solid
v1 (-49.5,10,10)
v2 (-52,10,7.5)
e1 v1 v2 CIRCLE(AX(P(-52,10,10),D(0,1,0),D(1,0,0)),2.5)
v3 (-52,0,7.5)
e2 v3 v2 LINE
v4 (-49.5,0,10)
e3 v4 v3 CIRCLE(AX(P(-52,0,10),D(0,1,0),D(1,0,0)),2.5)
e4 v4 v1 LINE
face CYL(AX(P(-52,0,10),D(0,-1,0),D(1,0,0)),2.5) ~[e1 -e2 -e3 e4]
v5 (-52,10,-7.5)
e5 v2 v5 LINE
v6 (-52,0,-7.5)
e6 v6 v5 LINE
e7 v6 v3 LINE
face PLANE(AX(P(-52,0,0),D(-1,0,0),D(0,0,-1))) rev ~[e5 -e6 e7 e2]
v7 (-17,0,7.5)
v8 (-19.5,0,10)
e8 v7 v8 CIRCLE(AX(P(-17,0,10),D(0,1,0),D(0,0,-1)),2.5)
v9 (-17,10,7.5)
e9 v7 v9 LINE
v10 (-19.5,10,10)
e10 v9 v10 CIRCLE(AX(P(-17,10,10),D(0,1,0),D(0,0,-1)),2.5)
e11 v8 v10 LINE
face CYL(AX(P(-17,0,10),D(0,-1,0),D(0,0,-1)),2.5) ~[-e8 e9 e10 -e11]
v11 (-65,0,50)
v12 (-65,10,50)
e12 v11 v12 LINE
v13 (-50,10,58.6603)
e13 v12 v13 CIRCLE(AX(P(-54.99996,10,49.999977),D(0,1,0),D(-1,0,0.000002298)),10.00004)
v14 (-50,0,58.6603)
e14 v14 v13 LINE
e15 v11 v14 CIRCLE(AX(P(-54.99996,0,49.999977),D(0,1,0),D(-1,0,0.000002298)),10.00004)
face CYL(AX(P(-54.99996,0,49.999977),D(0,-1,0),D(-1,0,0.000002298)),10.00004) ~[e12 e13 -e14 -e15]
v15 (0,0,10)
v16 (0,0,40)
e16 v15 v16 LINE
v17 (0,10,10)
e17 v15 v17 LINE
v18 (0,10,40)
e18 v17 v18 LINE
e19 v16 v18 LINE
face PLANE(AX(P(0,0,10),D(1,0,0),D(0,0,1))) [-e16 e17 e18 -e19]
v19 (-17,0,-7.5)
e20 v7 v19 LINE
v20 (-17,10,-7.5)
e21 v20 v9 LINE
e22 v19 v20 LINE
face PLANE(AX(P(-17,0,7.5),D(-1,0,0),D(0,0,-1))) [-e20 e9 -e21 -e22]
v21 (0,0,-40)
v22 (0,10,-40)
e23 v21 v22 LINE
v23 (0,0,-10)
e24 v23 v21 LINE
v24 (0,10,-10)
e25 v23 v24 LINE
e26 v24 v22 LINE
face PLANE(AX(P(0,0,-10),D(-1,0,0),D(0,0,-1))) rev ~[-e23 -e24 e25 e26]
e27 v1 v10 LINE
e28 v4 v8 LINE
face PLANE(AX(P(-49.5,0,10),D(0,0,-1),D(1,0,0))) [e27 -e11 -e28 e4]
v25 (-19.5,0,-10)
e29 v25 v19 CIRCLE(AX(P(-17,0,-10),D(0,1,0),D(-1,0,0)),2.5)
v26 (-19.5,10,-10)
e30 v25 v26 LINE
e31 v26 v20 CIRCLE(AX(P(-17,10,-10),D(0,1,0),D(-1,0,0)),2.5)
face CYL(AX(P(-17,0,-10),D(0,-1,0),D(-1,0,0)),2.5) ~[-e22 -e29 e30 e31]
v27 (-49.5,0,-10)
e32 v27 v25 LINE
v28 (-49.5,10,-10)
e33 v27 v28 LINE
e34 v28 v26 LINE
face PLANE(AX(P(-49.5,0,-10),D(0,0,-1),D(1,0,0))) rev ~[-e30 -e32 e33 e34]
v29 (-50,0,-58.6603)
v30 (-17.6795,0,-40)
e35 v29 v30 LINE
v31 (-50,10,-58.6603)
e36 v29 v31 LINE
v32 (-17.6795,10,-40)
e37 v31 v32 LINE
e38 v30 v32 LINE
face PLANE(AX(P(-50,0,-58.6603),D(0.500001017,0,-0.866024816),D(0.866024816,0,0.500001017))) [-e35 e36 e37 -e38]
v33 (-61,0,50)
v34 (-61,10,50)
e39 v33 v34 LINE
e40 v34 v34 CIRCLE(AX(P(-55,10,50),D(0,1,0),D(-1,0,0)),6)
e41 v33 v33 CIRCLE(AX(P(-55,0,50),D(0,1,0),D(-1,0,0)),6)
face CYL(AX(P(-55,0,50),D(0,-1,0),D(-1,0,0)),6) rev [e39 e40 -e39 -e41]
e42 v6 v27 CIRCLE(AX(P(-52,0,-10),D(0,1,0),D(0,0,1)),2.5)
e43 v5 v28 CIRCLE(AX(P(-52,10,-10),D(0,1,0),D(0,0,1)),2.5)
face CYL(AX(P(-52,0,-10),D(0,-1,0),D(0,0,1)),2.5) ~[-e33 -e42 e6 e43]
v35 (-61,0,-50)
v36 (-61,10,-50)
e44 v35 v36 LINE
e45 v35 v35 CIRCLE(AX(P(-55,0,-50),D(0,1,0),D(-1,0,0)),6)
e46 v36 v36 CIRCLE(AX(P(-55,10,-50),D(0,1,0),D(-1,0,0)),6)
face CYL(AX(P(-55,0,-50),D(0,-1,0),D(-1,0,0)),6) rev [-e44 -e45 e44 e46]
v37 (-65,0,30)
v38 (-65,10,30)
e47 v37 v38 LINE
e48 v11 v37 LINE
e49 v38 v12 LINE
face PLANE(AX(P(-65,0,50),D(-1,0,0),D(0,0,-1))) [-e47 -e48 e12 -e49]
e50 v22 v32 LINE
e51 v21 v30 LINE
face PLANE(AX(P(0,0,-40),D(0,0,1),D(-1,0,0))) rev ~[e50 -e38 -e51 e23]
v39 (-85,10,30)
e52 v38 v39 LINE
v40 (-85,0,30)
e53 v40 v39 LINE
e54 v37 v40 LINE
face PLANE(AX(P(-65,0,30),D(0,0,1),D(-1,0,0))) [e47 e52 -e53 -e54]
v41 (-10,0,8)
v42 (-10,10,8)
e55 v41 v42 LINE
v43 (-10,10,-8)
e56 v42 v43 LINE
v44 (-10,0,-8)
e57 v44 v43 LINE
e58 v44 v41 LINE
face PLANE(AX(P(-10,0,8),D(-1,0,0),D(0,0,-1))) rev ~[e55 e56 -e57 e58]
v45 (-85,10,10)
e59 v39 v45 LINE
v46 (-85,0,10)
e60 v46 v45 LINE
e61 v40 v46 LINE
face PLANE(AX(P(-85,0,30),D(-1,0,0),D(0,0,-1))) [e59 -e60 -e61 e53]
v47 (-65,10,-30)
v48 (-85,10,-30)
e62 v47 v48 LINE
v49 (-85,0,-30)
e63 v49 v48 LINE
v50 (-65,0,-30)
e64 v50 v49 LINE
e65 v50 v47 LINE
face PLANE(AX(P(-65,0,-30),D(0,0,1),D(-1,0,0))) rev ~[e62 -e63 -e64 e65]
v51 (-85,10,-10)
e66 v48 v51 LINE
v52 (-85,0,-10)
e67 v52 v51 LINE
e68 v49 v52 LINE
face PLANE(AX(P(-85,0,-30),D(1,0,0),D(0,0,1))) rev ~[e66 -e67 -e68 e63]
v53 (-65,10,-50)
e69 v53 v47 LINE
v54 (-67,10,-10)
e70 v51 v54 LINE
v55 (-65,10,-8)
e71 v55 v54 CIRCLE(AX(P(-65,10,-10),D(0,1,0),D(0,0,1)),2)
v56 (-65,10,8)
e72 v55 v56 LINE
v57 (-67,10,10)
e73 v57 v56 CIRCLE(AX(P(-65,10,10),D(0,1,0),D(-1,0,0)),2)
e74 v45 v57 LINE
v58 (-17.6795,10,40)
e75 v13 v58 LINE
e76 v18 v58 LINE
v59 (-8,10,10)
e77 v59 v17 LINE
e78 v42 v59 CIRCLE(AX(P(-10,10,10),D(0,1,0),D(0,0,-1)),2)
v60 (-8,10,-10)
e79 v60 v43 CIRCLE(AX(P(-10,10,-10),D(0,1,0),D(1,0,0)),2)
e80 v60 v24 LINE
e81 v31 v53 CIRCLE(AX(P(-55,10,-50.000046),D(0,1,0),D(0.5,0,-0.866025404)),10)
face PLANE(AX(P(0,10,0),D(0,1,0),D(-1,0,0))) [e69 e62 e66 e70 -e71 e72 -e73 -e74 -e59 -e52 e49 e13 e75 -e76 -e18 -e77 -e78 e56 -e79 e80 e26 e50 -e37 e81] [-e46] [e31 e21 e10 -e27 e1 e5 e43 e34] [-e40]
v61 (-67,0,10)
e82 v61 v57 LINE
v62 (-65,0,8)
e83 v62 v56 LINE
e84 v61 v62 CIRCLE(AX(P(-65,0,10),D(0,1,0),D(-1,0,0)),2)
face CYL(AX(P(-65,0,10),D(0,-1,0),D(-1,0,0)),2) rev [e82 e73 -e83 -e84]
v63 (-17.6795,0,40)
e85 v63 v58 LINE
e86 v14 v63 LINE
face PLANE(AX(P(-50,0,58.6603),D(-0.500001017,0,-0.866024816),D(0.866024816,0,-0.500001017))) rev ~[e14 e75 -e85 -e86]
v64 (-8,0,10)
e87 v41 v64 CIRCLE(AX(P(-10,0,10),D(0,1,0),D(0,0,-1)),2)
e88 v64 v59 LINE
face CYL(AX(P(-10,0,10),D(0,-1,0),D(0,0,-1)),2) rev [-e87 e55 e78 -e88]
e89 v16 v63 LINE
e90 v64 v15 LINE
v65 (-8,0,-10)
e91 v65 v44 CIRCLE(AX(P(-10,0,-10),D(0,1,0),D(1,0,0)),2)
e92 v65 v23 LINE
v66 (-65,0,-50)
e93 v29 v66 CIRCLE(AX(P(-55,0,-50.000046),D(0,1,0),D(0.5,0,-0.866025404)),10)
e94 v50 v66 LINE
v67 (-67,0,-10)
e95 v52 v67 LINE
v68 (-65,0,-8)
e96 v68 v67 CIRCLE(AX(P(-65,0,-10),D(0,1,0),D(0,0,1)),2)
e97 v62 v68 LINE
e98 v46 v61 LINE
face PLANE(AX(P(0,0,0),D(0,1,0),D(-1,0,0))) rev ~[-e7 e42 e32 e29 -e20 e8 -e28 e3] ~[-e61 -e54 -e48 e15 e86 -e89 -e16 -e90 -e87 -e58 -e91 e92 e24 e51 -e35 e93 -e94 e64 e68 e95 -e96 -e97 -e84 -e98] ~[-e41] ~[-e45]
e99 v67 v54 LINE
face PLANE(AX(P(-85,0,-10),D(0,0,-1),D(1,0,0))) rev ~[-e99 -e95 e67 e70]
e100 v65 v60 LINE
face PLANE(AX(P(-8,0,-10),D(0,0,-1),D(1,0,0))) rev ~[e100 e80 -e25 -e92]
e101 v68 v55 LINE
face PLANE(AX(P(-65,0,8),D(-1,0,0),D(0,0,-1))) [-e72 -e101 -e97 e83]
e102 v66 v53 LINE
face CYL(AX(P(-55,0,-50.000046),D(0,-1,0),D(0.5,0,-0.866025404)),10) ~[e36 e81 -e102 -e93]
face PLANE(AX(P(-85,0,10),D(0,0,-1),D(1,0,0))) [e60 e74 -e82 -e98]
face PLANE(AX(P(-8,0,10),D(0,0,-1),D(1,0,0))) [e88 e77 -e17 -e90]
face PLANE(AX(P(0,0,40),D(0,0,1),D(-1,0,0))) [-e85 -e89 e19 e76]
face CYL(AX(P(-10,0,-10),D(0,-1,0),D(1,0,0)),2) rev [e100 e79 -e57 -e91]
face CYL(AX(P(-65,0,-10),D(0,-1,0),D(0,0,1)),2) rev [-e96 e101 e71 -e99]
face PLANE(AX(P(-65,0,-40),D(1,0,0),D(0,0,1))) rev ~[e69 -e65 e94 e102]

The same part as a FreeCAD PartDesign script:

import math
import FreeCAD as App
import Part
import Sketcher
from FreeCAD import Vector
Q = App.Units.Quantity

doc = App.newDocument("Part")
body = doc.addObject("PartDesign::Body", "Body")

# Sketch on XZ plane
sketch1 = doc.addObject("Sketcher::SketchObject", "Sketch")
body.addObject(sketch1)
sketch1.AttachmentSupport = (doc.XZ_Plane, [""])
sketch1.MapMode = "FlatFace"
sketch1.addGeometry(Part.LineSegment(Vector(0, 10, 0), Vector(-8, 10, 0)), False)
sketch1.addGeometry(Part.ArcOfCircle(Part.Circle(Vector(-10, 10, 0), Vector(0, 0, 1), 2), math.radians(0), math.radians(270)), False)
sketch1.addGeometry(Part.LineSegment(Vector(-10, 8, 0), Vector(-10, -8, 0)), False)
sketch1.addGeometry(Part.ArcOfCircle(Part.Circle(Vector(-10, -10, 0), Vector(0, 0, 1), 2), math.radians(90), math.radians(360)), False)
sketch1.addGeometry(Part.LineSegment(Vector(-8, -10, 0), Vector(0, -10, 0)), False)
sketch1.addGeometry(Part.LineSegment(Vector(0, -10, 0), Vector(0, -40, 0)), False)
sketch1.addGeometry(Part.LineSegment(Vector(0, -40, 0), Vector(-17.7, -40, 0)), False)
sketch1.addGeometry(Part.LineSegment(Vector(-17.7, -40, 0), Vector(-50, -58.7, 0)), False)
sketch1.addGeometry(Part.ArcOfCircle(Part.Circle(Vector(-55, -50, 0), Vector(0, 0, 1), 10), math.radians(180), math.radians(300)), False)
sketch1.addGeometry(Part.LineSegment(Vector(-65, -50, 0), Vector(-65, -30, 0)), False)
sketch1.addGeometry(Part.LineSegment(Vector(-65, -30, 0), Vector(-85, -30, 0)), False)
sketch1.addGeometry(Part.LineSegment(Vector(-85, -30, 0), Vector(-85, -10, 0)), False)
sketch1.addGeometry(Part.LineSegment(Vector(-85, -10, 0), Vector(-67, -10, 0)), False)
sketch1.addGeometry(Part.ArcOfCircle(Part.Circle(Vector(-65, -10, 0), Vector(0, 0, 1), 2), math.radians(180), math.radians(450)), False)
sketch1.addGeometry(Part.LineSegment(Vector(-65, -8, 0), Vector(-65, 8, 0)), False)
sketch1.addGeometry(Part.ArcOfCircle(Part.Circle(Vector(-65, 10, 0), Vector(0, 0, 1), 2), math.radians(-90), math.radians(180)), False)
sketch1.addGeometry(Part.LineSegment(Vector(-67, 10, 0), Vector(-85, 10, 0)), False)
sketch1.addGeometry(Part.LineSegment(Vector(-85, 10, 0), Vector(-85, 30, 0)), False)
sketch1.addGeometry(Part.LineSegment(Vector(-85, 30, 0), Vector(-65, 30, 0)), False)
sketch1.addGeometry(Part.LineSegment(Vector(-65, 30, 0), Vector(-65, 50, 0)), False)
sketch1.addGeometry(Part.ArcOfCircle(Part.Circle(Vector(-55, 50, 0), Vector(0, 0, 1), 10), math.radians(60), math.radians(180)), False)
sketch1.addGeometry(Part.LineSegment(Vector(-50, 58.7, 0), Vector(-17.7, 40, 0)), False)
sketch1.addGeometry(Part.LineSegment(Vector(-17.7, 40, 0), Vector(0, 40, 0)), False)
sketch1.addGeometry(Part.LineSegment(Vector(0, 40, 0), Vector(0, 10, 0)), False)
sketch1.addGeometry(Part.Circle(Vector(-55, -50, 0), Vector(0, 0, 1), 6), False)
sketch1.addGeometry(Part.LineSegment(Vector(-19.5, 10, 0), Vector(-49.5, 10, 0)), False)
sketch1.addGeometry(Part.ArcOfCircle(Part.Circle(Vector(-52, 10, 0), Vector(0, 0, 1), 2.5), math.radians(-90), math.radians(0)), False)
sketch1.addGeometry(Part.LineSegment(Vector(-52, 7.5, 0), Vector(-52, -7.5, 0)), False)
sketch1.addGeometry(Part.ArcOfCircle(Part.Circle(Vector(-52, -10, 0), Vector(0, 0, 1), 2.5), math.radians(0), math.radians(90)), False)
sketch1.addGeometry(Part.LineSegment(Vector(-49.5, -10, 0), Vector(-19.5, -10, 0)), False)
sketch1.addGeometry(Part.ArcOfCircle(Part.Circle(Vector(-17, -10, 0), Vector(0, 0, 1), 2.5), math.radians(90), math.radians(180)), False)
sketch1.addGeometry(Part.LineSegment(Vector(-17, -7.5, 0), Vector(-17, 7.5, 0)), False)
sketch1.addGeometry(Part.ArcOfCircle(Part.Circle(Vector(-17, 10, 0), Vector(0, 0, 1), 2.5), math.radians(180), math.radians(270)), False)
sketch1.addGeometry(Part.Circle(Vector(-55, 50, 0), Vector(0, 0, 1), 6), False)
sketch1.addConstraint(Sketcher.Constraint("Coincident", 0, 2, 1, 1))
sketch1.addConstraint(Sketcher.Constraint("Coincident", 1, 2, 2, 1))
sketch1.addConstraint(Sketcher.Constraint("Coincident", 2, 2, 3, 1))
sketch1.addConstraint(Sketcher.Constraint("Coincident", 3, 2, 4, 1))
sketch1.addConstraint(Sketcher.Constraint("Coincident", 4, 2, 5, 1))
sketch1.addConstraint(Sketcher.Constraint("Coincident", 5, 2, 6, 1))
sketch1.addConstraint(Sketcher.Constraint("Coincident", 6, 2, 7, 1))
sketch1.addConstraint(Sketcher.Constraint("Tangent", 7, 2, 8, 2))
sketch1.addConstraint(Sketcher.Constraint("Tangent", 8, 1, 9, 1))
sketch1.addConstraint(Sketcher.Constraint("Coincident", 9, 2, 10, 1))
sketch1.addConstraint(Sketcher.Constraint("Coincident", 10, 2, 11, 1))
sketch1.addConstraint(Sketcher.Constraint("Coincident", 11, 2, 12, 1))
sketch1.addConstraint(Sketcher.Constraint("Coincident", 12, 2, 13, 1))
sketch1.addConstraint(Sketcher.Constraint("Coincident", 13, 2, 14, 1))
sketch1.addConstraint(Sketcher.Constraint("Coincident", 14, 2, 15, 1))
sketch1.addConstraint(Sketcher.Constraint("Coincident", 15, 2, 16, 1))
sketch1.addConstraint(Sketcher.Constraint("Coincident", 16, 2, 17, 1))
sketch1.addConstraint(Sketcher.Constraint("Coincident", 17, 2, 18, 1))
sketch1.addConstraint(Sketcher.Constraint("Coincident", 18, 2, 19, 1))
sketch1.addConstraint(Sketcher.Constraint("Tangent", 19, 2, 20, 2))
sketch1.addConstraint(Sketcher.Constraint("Tangent", 20, 1, 21, 1))
sketch1.addConstraint(Sketcher.Constraint("Coincident", 21, 2, 22, 1))
sketch1.addConstraint(Sketcher.Constraint("Coincident", 22, 2, 23, 1))
sketch1.addConstraint(Sketcher.Constraint("Coincident", 23, 2, 0, 1))
sketch1.addConstraint(Sketcher.Constraint("Coincident", 25, 2, 26, 2))
sketch1.addConstraint(Sketcher.Constraint("Coincident", 26, 1, 27, 1))
sketch1.addConstraint(Sketcher.Constraint("Coincident", 27, 2, 28, 2))
sketch1.addConstraint(Sketcher.Constraint("Coincident", 28, 1, 29, 1))
sketch1.addConstraint(Sketcher.Constraint("Coincident", 29, 2, 30, 2))
sketch1.addConstraint(Sketcher.Constraint("Coincident", 30, 1, 31, 1))
sketch1.addConstraint(Sketcher.Constraint("Coincident", 31, 2, 32, 2))
sketch1.addConstraint(Sketcher.Constraint("Coincident", 32, 1, 25, 1))
sketch1.addConstraint(Sketcher.Constraint("Horizontal", 0))
sketch1.addConstraint(Sketcher.Constraint("Vertical", 2))
sketch1.addConstraint(Sketcher.Constraint("Horizontal", 4))
sketch1.addConstraint(Sketcher.Constraint("Vertical", 5))
sketch1.addConstraint(Sketcher.Constraint("Horizontal", 6))
sketch1.addConstraint(Sketcher.Constraint("Vertical", 9))
sketch1.addConstraint(Sketcher.Constraint("Horizontal", 10))
sketch1.addConstraint(Sketcher.Constraint("Vertical", 11))
sketch1.addConstraint(Sketcher.Constraint("Horizontal", 12))
sketch1.addConstraint(Sketcher.Constraint("Vertical", 14))
sketch1.addConstraint(Sketcher.Constraint("Horizontal", 16))
sketch1.addConstraint(Sketcher.Constraint("Vertical", 17))
sketch1.addConstraint(Sketcher.Constraint("Horizontal", 18))
sketch1.addConstraint(Sketcher.Constraint("Vertical", 19))
sketch1.addConstraint(Sketcher.Constraint("Horizontal", 22))
sketch1.addConstraint(Sketcher.Constraint("Vertical", 23))
sketch1.addConstraint(Sketcher.Constraint("Horizontal", 25))
sketch1.addConstraint(Sketcher.Constraint("Vertical", 27))
sketch1.addConstraint(Sketcher.Constraint("Horizontal", 29))
sketch1.addConstraint(Sketcher.Constraint("Vertical", 31))
sketch1.addConstraint(Sketcher.Constraint("Coincident", 24, 3, 8, 3))
sketch1.addConstraint(Sketcher.Constraint("Coincident", 33, 3, 20, 3))
sketch1.addConstraint(Sketcher.Constraint("Equal", 1, 3))
sketch1.addConstraint(Sketcher.Constraint("Equal", 3, 13))
sketch1.addConstraint(Sketcher.Constraint("Equal", 13, 15))
sketch1.addConstraint(Sketcher.Constraint("Equal", 8, 20))
sketch1.addConstraint(Sketcher.Constraint("Equal", 26, 28))
sketch1.addConstraint(Sketcher.Constraint("Equal", 28, 30))
sketch1.addConstraint(Sketcher.Constraint("Equal", 30, 32))
sketch1.addConstraint(Sketcher.Constraint("Equal", 24, 33))
sketch1.addConstraint(Sketcher.Constraint("Symmetric", 5, 2, 22, 2, -1, 1))
sketch1.addConstraint(Sketcher.Constraint("Symmetric", 1, 3, 3, 3, -1))
sketch1.addConstraint(Sketcher.Constraint("Symmetric", 13, 3, 15, 3, -1))
sketch1.addConstraint(Sketcher.Constraint("Symmetric", 8, 3, 20, 3, -1))
sketch1.addConstraint(Sketcher.Constraint("Symmetric", 26, 3, 28, 3, -1))
sketch1.addConstraint(Sketcher.Constraint("Symmetric", 30, 3, 32, 3, -1))
sketch1.addConstraint(Sketcher.Constraint("Symmetric", 11, 2, 16, 2, -1))
sketch1.addConstraint(Sketcher.Constraint("Symmetric", 4, 2, 23, 2, -1))
sketch1.addConstraint(Sketcher.Constraint("Horizontal", 3, 3, 13, 3))
sketch1.addConstraint(Sketcher.Constraint("Horizontal", 15, 3, 26, 3))
sketch1.addConstraint(Sketcher.Constraint("Horizontal", 28, 3, 30, 3))
sketch1.addConstraint(Sketcher.Constraint("Horizontal", 32, 3, 0, 2))
sketch1.addConstraint(Sketcher.Constraint("Horizontal", 4, 2, 11, 2))
sketch1.addConstraint(Sketcher.Constraint("Horizontal", 23, 2, 25, 2))
sketch1.addConstraint(Sketcher.Constraint("Horizontal", 12, 2, 28, 1))
sketch1.addConstraint(Sketcher.Constraint("Vertical", 3, 3, 1, 2))
sketch1.addConstraint(Sketcher.Constraint("Vertical", 15, 3, 8, 1))
sketch1.addConstraint(Sketcher.Constraint("Vertical", 9, 2, 13, 2))
sketch1.addConstraint(Sketcher.Constraint("Vertical", 7, 2, 20, 1))
sketch1.addConstraint(Sketcher.Constraint("Vertical", 28, 3, 26, 1))
sketch1.addConstraint(Sketcher.Constraint("Vertical", 32, 3, 30, 1))
sketch1.addConstraint(Sketcher.Constraint("Equal", 29, 5))
sketch1.addConstraint(Sketcher.Constraint("Equal", 18, 9))
sketch1.addConstraint(Sketcher.Constraint("Equal", 9, 11))
sketch1.addConstraint(Sketcher.Constraint("Equal", 11, 17))
sketch1.addConstraint(Sketcher.Constraint("Diameter", 24, Q("12 mm")))
sketch1.addConstraint(Sketcher.Constraint("Radius", 1, Q("2 mm")))
sketch1.addConstraint(Sketcher.Constraint("Radius", 8, Q("10 mm")))
sketch1.addConstraint(Sketcher.Constraint("Radius", 26, Q("2.5 mm")))
sketch1.addConstraint(Sketcher.Constraint("DistanceX", 10, 2, 10, 1, Q("20 mm")))
sketch1.addConstraint(Sketcher.Constraint("DistanceX", 25, 2, 25, 1, Q("30 mm")))
sketch1.addConstraint(Sketcher.Constraint("Angle", 21, Q("-30 deg")))
sketch1.addConstraint(Sketcher.Constraint("DistanceX", 1, 3, -1, 1, Q("10 mm")))
sketch1.addConstraint(Sketcher.Constraint("DistanceY", -1, 1, 1, 3, Q("10 mm")))
sketch1.addConstraint(Sketcher.Constraint("DistanceX", 13, 3, -1, 1, Q("65 mm")))
sketch1.addConstraint(Sketcher.Constraint("DistanceX", 15, 3, 26, 3, Q("13 mm")))
pad1 = doc.addObject("PartDesign::Pad", "Pad")
body.addObject(pad1)
pad1.Profile = sketch1
pad1.Length = 10
pad1.Reversed = True

doc.recompute()
